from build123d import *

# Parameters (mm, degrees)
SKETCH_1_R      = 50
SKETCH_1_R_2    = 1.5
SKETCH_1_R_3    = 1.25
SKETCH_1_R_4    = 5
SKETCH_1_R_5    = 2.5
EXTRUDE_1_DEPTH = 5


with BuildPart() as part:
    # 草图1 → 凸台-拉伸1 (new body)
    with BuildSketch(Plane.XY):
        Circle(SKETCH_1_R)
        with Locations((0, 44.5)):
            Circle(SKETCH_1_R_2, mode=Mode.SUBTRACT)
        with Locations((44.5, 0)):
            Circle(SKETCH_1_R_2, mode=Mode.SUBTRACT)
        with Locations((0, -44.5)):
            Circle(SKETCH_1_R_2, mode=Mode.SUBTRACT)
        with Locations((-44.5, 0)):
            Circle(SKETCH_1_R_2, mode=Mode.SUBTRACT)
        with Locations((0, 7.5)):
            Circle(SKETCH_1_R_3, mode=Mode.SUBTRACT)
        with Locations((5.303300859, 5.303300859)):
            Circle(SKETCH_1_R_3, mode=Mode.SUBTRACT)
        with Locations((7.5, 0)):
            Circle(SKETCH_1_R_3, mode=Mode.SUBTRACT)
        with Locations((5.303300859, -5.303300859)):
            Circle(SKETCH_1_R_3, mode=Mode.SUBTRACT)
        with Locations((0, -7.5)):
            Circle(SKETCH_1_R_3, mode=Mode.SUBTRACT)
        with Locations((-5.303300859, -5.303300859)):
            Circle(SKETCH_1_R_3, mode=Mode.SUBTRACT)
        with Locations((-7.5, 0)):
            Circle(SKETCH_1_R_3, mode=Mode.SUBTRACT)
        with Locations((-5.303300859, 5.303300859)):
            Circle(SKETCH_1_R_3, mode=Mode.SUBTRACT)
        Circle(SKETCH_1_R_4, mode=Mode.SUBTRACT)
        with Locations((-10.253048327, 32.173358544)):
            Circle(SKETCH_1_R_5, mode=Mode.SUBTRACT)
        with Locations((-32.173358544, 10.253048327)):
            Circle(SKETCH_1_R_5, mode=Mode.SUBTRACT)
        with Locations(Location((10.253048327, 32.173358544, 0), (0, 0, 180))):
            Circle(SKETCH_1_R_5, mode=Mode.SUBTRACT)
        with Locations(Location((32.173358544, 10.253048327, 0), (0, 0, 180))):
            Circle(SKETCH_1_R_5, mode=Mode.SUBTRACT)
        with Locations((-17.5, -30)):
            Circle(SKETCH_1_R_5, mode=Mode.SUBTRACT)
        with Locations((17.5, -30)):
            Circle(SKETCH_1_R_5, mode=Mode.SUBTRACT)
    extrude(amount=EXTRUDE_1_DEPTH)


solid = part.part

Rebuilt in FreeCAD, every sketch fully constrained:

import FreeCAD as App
import Part
import Sketcher
from FreeCAD import Vector

doc = App.newDocument("Part")
body = doc.addObject("PartDesign::Body", "Body")

sketch1 = body.newObject("Sketcher::SketchObject", "Sketch")
sketch1.AttachmentSupport = (doc.getObject("XY_Plane"), [""])
sketch1.MapMode = "FlatFace"
sketch1.addGeometry([
    Part.Circle(Vector(0, 0, 0), Vector(0, 0, 1), 50),
    Part.Circle(Vector(-17.5, -30, 0), Vector(0, 0, 1), 2.5),
    Part.Circle(Vector(-5.3, -5.3, 0), Vector(0, 0, 1), 1.2),
    Part.Circle(Vector(0, -44.5, 0), Vector(0, 0, 1), 1.5),
    Part.Circle(Vector(17.5, -30, 0), Vector(0, 0, 1), 2.5),
    Part.Circle(Vector(0, -7.5, 0), Vector(0, 0, 1), 1.2),
    Part.Circle(Vector(5.3, -5.3, 0), Vector(0, 0, 1), 1.2),
    Part.Circle(Vector(-44.5, 0, 0), Vector(0, 0, 1), 1.5),
    Part.Circle(Vector(-32.2, 10.3, 0), Vector(0, 0, 1), 2.5),
    Part.Circle(Vector(-7.5, 0, 0), Vector(0, 0, 1), 1.2),
    Part.Circle(Vector(-5.3, 5.3, 0), Vector(0, 0, 1), 1.2),
    Part.Circle(Vector(-10.3, 32.2, 0), Vector(0, 0, 1), 2.5),
    Part.Circle(Vector(0, 0, 0), Vector(0, 0, 1), 5),
    Part.Circle(Vector(5.3, 5.3, 0), Vector(0, 0, 1), 1.2),
    Part.Circle(Vector(7.5, 0, 0), Vector(0, 0, 1), 1.2),
    Part.Circle(Vector(0, 7.5, 0), Vector(0, 0, 1), 1.2),
    Part.Circle(Vector(32.2, 10.3, 0), Vector(0, 0, 1), 2.5),
    Part.Circle(Vector(44.5, 0, 0), Vector(0, 0, 1), 1.5),
    Part.Circle(Vector(10.3, 32.2, 0), Vector(0, 0, 1), 2.5),
    Part.Circle(Vector(0, 44.5, 0), Vector(0, 0, 1), 1.5),
], False)
sketch1.addConstraint([
    Sketcher.Constraint("Coincident", 0, 3, -1, 1),
    Sketcher.Constraint("Coincident", 12, 3, -1, 1),
    Sketcher.Constraint("Equal", 1, 4),
    Sketcher.Constraint("Equal", 2, 5),
    Sketcher.Constraint("Equal", 5, 6),
    Sketcher.Constraint("Equal", 3, 7),
    Sketcher.Constraint("Equal", 4, 8),
    Sketcher.Constraint("Equal", 6, 9),
    Sketcher.Constraint("Equal", 9, 10),
    Sketcher.Constraint("Equal", 8, 11),
    Sketcher.Constraint("Equal", 10, 13),
    Sketcher.Constraint("Equal", 13, 14),
    Sketcher.Constraint("Equal", 14, 15),
    Sketcher.Constraint("Equal", 11, 16),
    Sketcher.Constraint("Equal", 7, 17),
    Sketcher.Constraint("Equal", 16, 18),
    Sketcher.Constraint("Equal", 17, 19),
    Sketcher.Constraint("Symmetric", 6, 3, 10, 3, -1, 1),
    Sketcher.Constraint("Symmetric", 2, 3, 13, 3, -1, 1),
    Sketcher.Constraint("Symmetric", 9, 3, 14, 3, -1, 1),
    Sketcher.Constraint("Symmetric", 5, 3, 15, 3, -1, 1),
    Sketcher.Constraint("Symmetric", 7, 3, 17, 3, -1, 1),
    Sketcher.Constraint("Symmetric", 3, 3, 19, 3, -1, 1),
    Sketcher.Constraint("Symmetric", 1, 3, 4, 3, -2),
    Sketcher.Constraint("Symmetric", 2, 3, 6, 3, -2),
    Sketcher.Constraint("Symmetric", 8, 3, 16, 3, -2),
    Sketcher.Constraint("Symmetric", 11, 3, 18, 3, -2),
    Sketcher.Constraint("PointOnObject", 3, 3, -2),
    Sketcher.Constraint("PointOnObject", 5, 3, -2),
    Sketcher.Constraint("PointOnObject", 7, 3, -1),
    Sketcher.Constraint("PointOnObject", 9, 3, -1),
    Sketcher.Constraint("Diameter", 0, 100.0),
    Sketcher.Constraint("Diameter", 1, 5.0),
    Sketcher.Constraint("Diameter", 3, 3.0),
    Sketcher.Constraint("Diameter", 12, 10.0),
    Sketcher.Constraint("Diameter", 2, 2.5),
    Sketcher.Constraint("DistanceY", 1, 3, -1, 1, 30.0),
    Sketcher.Constraint("DistanceX", 1, 3, 4, 3, 35.0),
    Sketcher.Constraint("DistanceY", 3, 3, 5, 3, 37.0),
    Sketcher.Constraint("DistanceX", 7, 3, 1, 3, 27.0),
    Sketcher.Constraint("DistanceX", 14, 3, 17, 3, 37.0),
    Sketcher.Constraint("DistanceY", 3, 3, -1, 1, 44.5),
    Sketcher.Constraint("DistanceX", 2, 3, -1, 1, 5.303301),
    Sketcher.Constraint("DistanceY", 2, 3, -1, 1, 5.303301),
    Sketcher.Constraint("DistanceX", 8, 3, -1, 1, 32.173359),
    Sketcher.Constraint("DistanceY", -1, 1, 8, 3, 10.253048),
    Sketcher.Constraint("DistanceX", 11, 3, -1, 1, 10.253048),
    Sketcher.Constraint("DistanceY", -1, 1, 11, 3, 32.173359),
])
pad1 = body.newObject("PartDesign::Pad", "Pad")
pad1.Profile = sketch1
pad1.Length = 5

doc.recompute()
